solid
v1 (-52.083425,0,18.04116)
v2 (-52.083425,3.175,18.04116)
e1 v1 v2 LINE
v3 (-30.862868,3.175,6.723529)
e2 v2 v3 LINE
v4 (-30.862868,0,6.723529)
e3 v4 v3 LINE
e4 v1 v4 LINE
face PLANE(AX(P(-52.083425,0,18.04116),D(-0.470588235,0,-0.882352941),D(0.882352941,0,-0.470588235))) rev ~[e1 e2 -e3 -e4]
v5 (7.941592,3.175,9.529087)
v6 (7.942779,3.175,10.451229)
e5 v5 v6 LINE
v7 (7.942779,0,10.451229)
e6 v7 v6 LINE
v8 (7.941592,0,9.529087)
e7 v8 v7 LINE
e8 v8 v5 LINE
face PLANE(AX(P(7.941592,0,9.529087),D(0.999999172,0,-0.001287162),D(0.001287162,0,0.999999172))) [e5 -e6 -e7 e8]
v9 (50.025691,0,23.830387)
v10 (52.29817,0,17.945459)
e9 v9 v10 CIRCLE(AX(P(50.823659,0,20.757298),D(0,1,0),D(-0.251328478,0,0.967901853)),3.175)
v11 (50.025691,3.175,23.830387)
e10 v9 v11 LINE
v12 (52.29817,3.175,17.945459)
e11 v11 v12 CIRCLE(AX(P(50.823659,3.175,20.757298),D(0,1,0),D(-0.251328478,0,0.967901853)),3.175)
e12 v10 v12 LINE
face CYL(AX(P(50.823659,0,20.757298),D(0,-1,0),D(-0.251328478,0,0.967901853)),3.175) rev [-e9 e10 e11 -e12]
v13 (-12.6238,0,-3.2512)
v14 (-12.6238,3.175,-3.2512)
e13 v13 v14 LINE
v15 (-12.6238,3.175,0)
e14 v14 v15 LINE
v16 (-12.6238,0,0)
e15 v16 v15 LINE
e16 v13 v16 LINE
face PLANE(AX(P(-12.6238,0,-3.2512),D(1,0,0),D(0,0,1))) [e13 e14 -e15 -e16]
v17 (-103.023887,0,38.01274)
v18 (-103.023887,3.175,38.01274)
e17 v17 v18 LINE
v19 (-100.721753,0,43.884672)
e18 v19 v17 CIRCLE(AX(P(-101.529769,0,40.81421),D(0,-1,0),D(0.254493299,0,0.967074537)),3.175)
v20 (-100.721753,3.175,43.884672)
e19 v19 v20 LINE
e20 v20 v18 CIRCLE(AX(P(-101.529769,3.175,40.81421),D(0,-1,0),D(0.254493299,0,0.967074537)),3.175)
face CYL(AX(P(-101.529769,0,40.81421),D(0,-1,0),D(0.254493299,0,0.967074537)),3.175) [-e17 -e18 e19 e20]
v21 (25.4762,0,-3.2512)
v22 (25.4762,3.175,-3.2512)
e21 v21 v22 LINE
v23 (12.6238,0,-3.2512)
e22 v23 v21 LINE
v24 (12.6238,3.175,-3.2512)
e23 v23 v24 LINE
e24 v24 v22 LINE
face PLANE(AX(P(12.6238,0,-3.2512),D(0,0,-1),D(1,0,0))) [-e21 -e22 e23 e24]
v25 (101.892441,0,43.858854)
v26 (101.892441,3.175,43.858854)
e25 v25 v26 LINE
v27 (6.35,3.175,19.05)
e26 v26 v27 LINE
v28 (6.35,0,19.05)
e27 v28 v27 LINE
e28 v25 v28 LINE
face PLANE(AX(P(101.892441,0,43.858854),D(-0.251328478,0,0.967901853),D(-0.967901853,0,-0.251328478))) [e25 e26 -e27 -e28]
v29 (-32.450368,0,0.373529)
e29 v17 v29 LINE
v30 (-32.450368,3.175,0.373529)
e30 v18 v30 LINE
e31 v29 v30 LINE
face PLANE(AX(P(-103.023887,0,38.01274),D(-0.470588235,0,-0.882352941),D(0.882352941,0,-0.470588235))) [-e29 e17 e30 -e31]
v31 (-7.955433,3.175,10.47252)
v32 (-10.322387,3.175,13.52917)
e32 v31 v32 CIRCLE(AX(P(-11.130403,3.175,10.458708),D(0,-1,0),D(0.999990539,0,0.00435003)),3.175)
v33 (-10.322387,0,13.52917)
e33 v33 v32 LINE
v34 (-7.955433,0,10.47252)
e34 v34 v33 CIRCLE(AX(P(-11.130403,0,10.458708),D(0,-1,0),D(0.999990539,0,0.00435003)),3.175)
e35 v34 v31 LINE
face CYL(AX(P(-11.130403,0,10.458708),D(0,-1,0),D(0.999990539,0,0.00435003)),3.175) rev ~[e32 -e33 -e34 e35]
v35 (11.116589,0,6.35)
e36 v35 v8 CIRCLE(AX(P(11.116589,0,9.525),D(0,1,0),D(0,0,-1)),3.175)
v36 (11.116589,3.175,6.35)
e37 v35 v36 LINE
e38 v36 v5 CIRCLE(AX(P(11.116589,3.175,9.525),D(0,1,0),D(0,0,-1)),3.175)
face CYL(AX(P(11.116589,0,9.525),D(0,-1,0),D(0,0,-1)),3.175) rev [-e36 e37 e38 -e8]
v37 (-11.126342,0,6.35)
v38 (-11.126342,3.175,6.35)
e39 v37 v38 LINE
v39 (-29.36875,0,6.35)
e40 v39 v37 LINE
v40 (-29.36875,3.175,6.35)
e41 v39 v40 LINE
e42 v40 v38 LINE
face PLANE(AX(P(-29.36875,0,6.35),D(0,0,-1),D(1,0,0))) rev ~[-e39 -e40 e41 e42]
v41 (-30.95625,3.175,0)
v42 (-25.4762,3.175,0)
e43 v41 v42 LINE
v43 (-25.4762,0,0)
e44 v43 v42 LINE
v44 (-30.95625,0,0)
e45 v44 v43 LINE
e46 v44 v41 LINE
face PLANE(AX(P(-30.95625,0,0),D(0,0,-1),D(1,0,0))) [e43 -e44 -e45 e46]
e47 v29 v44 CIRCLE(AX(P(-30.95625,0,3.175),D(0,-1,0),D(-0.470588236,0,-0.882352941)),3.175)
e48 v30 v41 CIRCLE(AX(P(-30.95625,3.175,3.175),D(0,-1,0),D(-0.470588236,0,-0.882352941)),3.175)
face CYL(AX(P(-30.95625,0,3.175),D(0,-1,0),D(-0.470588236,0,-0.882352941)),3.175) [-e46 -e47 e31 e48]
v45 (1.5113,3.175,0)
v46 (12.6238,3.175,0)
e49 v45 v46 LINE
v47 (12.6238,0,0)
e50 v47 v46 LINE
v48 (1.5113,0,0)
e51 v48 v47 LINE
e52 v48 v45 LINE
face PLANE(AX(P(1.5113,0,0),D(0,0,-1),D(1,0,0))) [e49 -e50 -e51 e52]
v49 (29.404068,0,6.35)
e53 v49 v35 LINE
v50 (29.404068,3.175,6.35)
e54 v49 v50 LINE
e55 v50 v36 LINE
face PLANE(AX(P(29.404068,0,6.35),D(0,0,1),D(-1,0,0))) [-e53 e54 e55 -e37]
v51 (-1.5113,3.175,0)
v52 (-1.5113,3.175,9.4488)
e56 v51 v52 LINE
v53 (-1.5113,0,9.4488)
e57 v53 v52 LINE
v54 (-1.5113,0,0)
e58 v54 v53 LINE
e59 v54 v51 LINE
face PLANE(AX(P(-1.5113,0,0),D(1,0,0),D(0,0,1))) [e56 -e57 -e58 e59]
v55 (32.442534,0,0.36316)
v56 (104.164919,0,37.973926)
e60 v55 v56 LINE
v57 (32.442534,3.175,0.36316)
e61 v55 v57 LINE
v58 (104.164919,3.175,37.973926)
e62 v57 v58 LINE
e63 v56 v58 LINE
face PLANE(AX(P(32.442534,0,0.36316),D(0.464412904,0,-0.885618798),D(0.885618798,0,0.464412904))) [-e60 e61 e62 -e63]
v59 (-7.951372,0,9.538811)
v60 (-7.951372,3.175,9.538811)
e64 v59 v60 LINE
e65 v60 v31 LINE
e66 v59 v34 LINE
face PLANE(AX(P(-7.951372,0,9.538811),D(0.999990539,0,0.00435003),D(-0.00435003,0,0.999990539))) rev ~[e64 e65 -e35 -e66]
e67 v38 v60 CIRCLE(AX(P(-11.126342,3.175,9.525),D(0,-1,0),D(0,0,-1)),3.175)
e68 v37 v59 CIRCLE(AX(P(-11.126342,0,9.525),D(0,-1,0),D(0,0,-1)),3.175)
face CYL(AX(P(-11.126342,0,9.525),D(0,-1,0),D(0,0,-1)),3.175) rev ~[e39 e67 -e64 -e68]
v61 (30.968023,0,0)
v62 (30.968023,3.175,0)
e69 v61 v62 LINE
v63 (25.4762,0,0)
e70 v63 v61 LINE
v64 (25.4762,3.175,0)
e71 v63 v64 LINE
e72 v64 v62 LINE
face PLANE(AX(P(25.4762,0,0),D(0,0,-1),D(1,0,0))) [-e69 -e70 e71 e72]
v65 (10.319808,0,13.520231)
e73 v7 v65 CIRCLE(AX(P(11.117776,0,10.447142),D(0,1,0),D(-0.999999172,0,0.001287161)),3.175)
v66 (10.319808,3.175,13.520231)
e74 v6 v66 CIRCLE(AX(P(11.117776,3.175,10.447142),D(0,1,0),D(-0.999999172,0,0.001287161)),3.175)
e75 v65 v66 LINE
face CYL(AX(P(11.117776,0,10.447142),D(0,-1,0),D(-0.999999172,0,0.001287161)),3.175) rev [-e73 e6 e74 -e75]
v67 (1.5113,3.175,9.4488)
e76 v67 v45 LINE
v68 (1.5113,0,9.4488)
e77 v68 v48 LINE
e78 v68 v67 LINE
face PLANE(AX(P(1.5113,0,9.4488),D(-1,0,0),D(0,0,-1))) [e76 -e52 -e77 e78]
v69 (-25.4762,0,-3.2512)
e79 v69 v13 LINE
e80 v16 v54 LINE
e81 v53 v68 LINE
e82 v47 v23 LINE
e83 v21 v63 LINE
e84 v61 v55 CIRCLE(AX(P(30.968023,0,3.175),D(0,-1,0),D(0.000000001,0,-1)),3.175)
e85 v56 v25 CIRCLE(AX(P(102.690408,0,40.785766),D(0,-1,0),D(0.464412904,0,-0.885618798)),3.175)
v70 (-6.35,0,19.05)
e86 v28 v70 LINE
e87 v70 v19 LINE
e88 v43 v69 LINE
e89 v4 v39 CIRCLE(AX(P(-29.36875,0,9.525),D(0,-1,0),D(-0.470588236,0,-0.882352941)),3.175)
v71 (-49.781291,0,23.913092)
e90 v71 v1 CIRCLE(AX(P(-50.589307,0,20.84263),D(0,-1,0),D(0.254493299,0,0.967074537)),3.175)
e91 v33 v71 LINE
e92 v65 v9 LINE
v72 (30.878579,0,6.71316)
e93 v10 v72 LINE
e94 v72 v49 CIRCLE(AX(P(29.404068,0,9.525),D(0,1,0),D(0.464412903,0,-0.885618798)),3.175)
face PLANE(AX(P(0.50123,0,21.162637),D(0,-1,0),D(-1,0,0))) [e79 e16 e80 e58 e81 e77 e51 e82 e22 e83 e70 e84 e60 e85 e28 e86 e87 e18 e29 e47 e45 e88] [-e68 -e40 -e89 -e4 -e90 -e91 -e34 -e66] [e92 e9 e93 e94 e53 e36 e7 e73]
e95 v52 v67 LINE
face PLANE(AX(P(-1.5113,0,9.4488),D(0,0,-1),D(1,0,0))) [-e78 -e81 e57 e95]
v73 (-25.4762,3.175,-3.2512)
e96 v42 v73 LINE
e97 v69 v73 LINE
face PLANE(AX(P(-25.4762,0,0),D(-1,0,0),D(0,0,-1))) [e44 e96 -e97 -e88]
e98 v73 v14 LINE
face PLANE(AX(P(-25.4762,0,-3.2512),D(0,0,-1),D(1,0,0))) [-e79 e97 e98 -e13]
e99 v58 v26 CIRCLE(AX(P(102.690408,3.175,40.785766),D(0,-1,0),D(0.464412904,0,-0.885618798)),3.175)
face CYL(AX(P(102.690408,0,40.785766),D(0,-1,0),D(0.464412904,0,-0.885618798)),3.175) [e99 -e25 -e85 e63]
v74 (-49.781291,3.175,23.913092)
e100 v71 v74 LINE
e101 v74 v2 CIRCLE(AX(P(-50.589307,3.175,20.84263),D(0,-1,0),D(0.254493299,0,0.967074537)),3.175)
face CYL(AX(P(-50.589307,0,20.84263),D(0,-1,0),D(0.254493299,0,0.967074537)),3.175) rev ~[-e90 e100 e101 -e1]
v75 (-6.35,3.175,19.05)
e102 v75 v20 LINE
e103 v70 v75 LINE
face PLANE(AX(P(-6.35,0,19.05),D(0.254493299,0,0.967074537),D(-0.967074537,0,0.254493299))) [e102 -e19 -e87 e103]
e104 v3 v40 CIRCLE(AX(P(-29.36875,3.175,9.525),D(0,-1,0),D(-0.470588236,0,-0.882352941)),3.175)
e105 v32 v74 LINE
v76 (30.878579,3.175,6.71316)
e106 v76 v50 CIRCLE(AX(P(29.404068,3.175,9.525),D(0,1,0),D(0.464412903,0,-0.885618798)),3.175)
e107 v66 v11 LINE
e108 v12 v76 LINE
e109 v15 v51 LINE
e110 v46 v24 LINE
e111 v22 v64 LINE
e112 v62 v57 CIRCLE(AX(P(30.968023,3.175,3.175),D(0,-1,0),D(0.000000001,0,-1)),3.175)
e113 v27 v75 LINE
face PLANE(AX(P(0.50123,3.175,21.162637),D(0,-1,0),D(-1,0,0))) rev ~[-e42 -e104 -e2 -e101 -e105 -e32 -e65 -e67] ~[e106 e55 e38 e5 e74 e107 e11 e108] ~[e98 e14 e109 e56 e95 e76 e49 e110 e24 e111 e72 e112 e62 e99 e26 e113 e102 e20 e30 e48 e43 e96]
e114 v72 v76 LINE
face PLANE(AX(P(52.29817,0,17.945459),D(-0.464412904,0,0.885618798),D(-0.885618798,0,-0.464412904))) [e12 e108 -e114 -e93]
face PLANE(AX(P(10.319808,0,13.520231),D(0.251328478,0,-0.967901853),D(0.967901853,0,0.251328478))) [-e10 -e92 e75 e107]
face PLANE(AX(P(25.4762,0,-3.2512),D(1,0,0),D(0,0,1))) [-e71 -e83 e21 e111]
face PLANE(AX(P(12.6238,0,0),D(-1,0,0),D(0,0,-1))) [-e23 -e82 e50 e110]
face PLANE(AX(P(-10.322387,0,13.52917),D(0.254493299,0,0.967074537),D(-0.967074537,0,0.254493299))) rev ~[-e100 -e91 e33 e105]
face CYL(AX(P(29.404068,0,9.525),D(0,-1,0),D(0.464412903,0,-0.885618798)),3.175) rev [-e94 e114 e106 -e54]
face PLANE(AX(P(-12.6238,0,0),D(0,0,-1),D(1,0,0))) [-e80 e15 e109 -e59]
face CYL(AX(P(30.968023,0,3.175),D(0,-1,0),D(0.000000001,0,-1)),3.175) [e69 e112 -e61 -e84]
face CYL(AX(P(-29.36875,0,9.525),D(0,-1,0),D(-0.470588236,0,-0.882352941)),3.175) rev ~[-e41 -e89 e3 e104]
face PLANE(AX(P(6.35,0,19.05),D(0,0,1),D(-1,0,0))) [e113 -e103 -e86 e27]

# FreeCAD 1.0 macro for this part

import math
import FreeCAD as App
import Part
import Sketcher
from FreeCAD import Vector
Q = App.Units.Quantity

doc = App.newDocument("Part")
params = doc.addObject("Spreadsheet::Sheet", "Params")
for row, (alias, value) in enumerate([
    ("sketch1_width", "0.5 in"),
    ("sketch1_radius", "0.125 in"),
    ("sketch1_radius2", "0.125 in"),
    ("sketch1_radius3", "0.125 in"),
    ("sketch1_radius4", "0.125 in"),
    ("pad1_length", "0.125 in"),
], start=1):
    params.set(f"A{row}", alias)
    params.set(f"B{row}", "=" + value)
    params.setAlias(f"B{row}", alias)

body = doc.addObject("PartDesign::Body", "Body")

# Sketch on XZ plane
sketch1 = doc.addObject("Sketcher::SketchObject", "Sketch")
body.addObject(sketch1)
sketch1.AttachmentSupport = (doc.XZ_Plane, [""])
sketch1.MapMode = "FlatFace"
sketch1.addGeometry([
    Part.LineSegment(Vector(12.6238, 0, 0), Vector(1.5113, 0, 0)),  # 0
    Part.LineSegment(Vector(1.5113, 0, 0), Vector(1.5113, 9.4488, 0)),  # 1
    Part.LineSegment(Vector(1.5113, 9.4488, 0), Vector(-1.5113, 9.4488, 0)),  # 2
    Part.LineSegment(Vector(-1.5113, 9.4488, 0), Vector(-1.5113, 0, 0)),  # 3
    Part.LineSegment(Vector(-1.5113, 0, 0), Vector(-12.6238, 0, 0)),  # 4
    Part.LineSegment(Vector(-12.6238, 0, 0), Vector(-12.6238, -3.2512, 0)),  # 5
    Part.LineSegment(Vector(-12.6238, -3.2512, 0), Vector(-25.4762, -3.2512, 0)),  # 6
    Part.LineSegment(Vector(-25.4762, -3.2512, 0), Vector(-25.4762, 0, 0)),  # 7
    Part.LineSegment(Vector(-25.4762, 0, 0), Vector(-30.95625, 0, 0)),  # 8
    Part.ArcOfCircle(Part.Circle(Vector(-30.95625, 3.175, 0), Vector(0, 0, 1), 3.175), math.radians(-118.072487), math.radians(-90)),  # 9
    Part.LineSegment(Vector(-32.450368, 0.373529, 0), Vector(-103.023887, 38.01274, 0)),  # 10
    Part.ArcOfCircle(Part.Circle(Vector(-101.529769, 40.81421, 0), Vector(0, 0, 1), 3.175), math.radians(75.256437), math.radians(241.927513)),  # 11
    Part.LineSegment(Vector(-100.721753, 43.884672, 0), Vector(-6.35, 19.05, 0)),  # 12
    Part.LineSegment(Vector(-6.35, 19.05, 0), Vector(6.35, 19.05, 0)),  # 13
    Part.LineSegment(Vector(6.35, 19.05, 0), Vector(101.892441, 43.858854, 0)),  # 14
    Part.ArcOfCircle(Part.Circle(Vector(102.690408, 40.785766, 0), Vector(0, 0, 1), 3.175), math.radians(-62.327767), math.radians(104.556139)),  # 15
    Part.LineSegment(Vector(104.164919, 37.973926, 0), Vector(32.442534, 0.36316, 0)),  # 16
    Part.ArcOfCircle(Part.Circle(Vector(30.968023, 3.175, 0), Vector(0, 0, 1), 3.175), math.radians(-90), math.radians(-62.327767)),  # 17
    Part.LineSegment(Vector(30.968023, 0, 0), Vector(25.4762, 0, 0)),  # 18
    Part.LineSegment(Vector(25.4762, 0, 0), Vector(25.4762, -3.2512, 0)),  # 19
    Part.LineSegment(Vector(25.4762, -3.2512, 0), Vector(12.6238, -3.2512, 0)),  # 20
    Part.LineSegment(Vector(12.6238, -3.2512, 0), Vector(12.6238, 0, 0)),  # 21
    Part.ArcOfCircle(Part.Circle(Vector(11.116589, 9.525, 0), Vector(0, 0, 1), 3.175), math.radians(179.926251), math.radians(270)),  # 22
    Part.LineSegment(Vector(11.116589, 6.35, 0), Vector(29.404068, 6.35, 0)),  # 23
    Part.ArcOfCircle(Part.Circle(Vector(29.404068, 9.525, 0), Vector(0, 0, 1), 3.175), math.radians(-90), math.radians(-62.327767)),  # 24
    Part.LineSegment(Vector(30.878579, 6.71316, 0), Vector(52.29817, 17.945459, 0)),  # 25
    Part.ArcOfCircle(Part.Circle(Vector(50.823659, 20.757298, 0), Vector(0, 0, 1), 3.175), math.radians(-62.327767), math.radians(104.556139)),  # 26
    Part.LineSegment(Vector(50.025691, 23.830387, 0), Vector(10.319808, 13.520231, 0)),  # 27
    Part.ArcOfCircle(Part.Circle(Vector(11.117776, 10.447142, 0), Vector(0, 0, 1), 3.175), math.radians(104.556139), math.radians(179.926251)),  # 28
    Part.LineSegment(Vector(7.942779, 10.451229, 0), Vector(7.941592, 9.529087, 0)),  # 29
    Part.LineSegment(Vector(-52.083425, 18.04116, 0), Vector(-30.862868, 6.723529, 0)),  # 30
    Part.ArcOfCircle(Part.Circle(Vector(-29.36875, 9.525, 0), Vector(0, 0, 1), 3.175), math.radians(-118.072487), math.radians(-90)),  # 31
    Part.LineSegment(Vector(-29.36875, 6.35, 0), Vector(-11.126342, 6.35, 0)),  # 32
    Part.ArcOfCircle(Part.Circle(Vector(-11.126342, 9.525, 0), Vector(0, 0, 1), 3.175), math.radians(-90), math.radians(0.249239)),  # 33
    Part.LineSegment(Vector(-7.951372, 9.538811, 0), Vector(-7.955433, 10.47252, 0)),  # 34
    Part.ArcOfCircle(Part.Circle(Vector(-11.130403, 10.458708, 0), Vector(0, 0, 1), 3.175), math.radians(0.249239), math.radians(75.256437)),  # 35
    Part.LineSegment(Vector(-10.322387, 13.52917, 0), Vector(-49.781291, 23.913092, 0)),  # 36
    Part.ArcOfCircle(Part.Circle(Vector(-50.589307, 20.84263, 0), Vector(0, 0, 1), 3.175), math.radians(75.256437), math.radians(241.927513)),  # 37
], False)
sketch1.addConstraint([
    Sketcher.Constraint("Coincident", 0, 2, 1, 1),
    Sketcher.Constraint("Coincident", 1, 2, 2, 1),
    Sketcher.Constraint("Coincident", 2, 2, 3, 1),
    Sketcher.Constraint("Coincident", 3, 2, 4, 1),
    Sketcher.Constraint("Coincident", 4, 2, 5, 1),
    Sketcher.Constraint("Coincident", 5, 2, 6, 1),
    Sketcher.Constraint("Coincident", 6, 2, 7, 1),
    Sketcher.Constraint("Coincident", 7, 2, 8, 1),
    Sketcher.Constraint("Coincident", 8, 2, 9, 2),
    Sketcher.Constraint("Coincident", 9, 1, 10, 1),
    Sketcher.Constraint("Coincident", 10, 2, 11, 2),
    Sketcher.Constraint("Coincident", 11, 1, 12, 1),
    Sketcher.Constraint("Coincident", 12, 2, 13, 1),
    Sketcher.Constraint("Coincident", 13, 2, 14, 1),
    Sketcher.Constraint("Coincident", 14, 2, 15, 2),
    Sketcher.Constraint("Coincident", 15, 1, 16, 1),
    Sketcher.Constraint("Coincident", 16, 2, 17, 2),
    Sketcher.Constraint("Coincident", 17, 1, 18, 1),
    Sketcher.Constraint("Coincident", 18, 2, 19, 1),
    Sketcher.Constraint("Coincident", 19, 2, 20, 1),
    Sketcher.Constraint("Coincident", 20, 2, 21, 1),
    Sketcher.Constraint("Coincident", 21, 2, 0, 1),
    Sketcher.Constraint("Coincident", 22, 2, 23, 1),
    Sketcher.Constraint("Coincident", 23, 2, 24, 1),
    Sketcher.Constraint("Coincident", 24, 2, 25, 1),
    Sketcher.Constraint("Coincident", 25, 2, 26, 1),
    Sketcher.Constraint("Coincident", 26, 2, 27, 1),
    Sketcher.Constraint("Coincident", 27, 2, 28, 1),
    Sketcher.Constraint("Coincident", 28, 2, 29, 1),
    Sketcher.Constraint("Coincident", 29, 2, 22, 1),
    Sketcher.Constraint("Coincident", 30, 2, 31, 1),
    Sketcher.Constraint("Coincident", 31, 2, 32, 1),
    Sketcher.Constraint("Coincident", 32, 2, 33, 1),
    Sketcher.Constraint("Coincident", 33, 2, 34, 1),
    Sketcher.Constraint("Coincident", 34, 2, 35, 1),
    Sketcher.Constraint("Coincident", 35, 2, 36, 1),
    Sketcher.Constraint("Coincident", 36, 2, 37, 1),
    Sketcher.Constraint("Coincident", 37, 2, 30, 1),
    Sketcher.Constraint("Horizontal", 0),
    Sketcher.Constraint("Vertical", 1),
    Sketcher.Constraint("Horizontal", 2),
    Sketcher.Constraint("Vertical", 3),
    Sketcher.Constraint("Horizontal", 4),
    Sketcher.Constraint("Vertical", 5),
    Sketcher.Constraint("Horizontal", 6),
    Sketcher.Constraint("Vertical", 7),
    Sketcher.Constraint("Horizontal", 8),
    Sketcher.Constraint("Horizontal", 13),
    Sketcher.Constraint("Horizontal", 18),
    Sketcher.Constraint("Vertical", 19),
    Sketcher.Constraint("Horizontal", 20),
    Sketcher.Constraint("Vertical", 21),
    Sketcher.Constraint("Horizontal", 23),
    Sketcher.Constraint("Horizontal", 32),
    Sketcher.Constraint("PointOnObject", 0, 2, -1),
    Sketcher.Constraint("PointOnObject", 3, 2, -1),
    Sketcher.Constraint("PointOnObject", 7, 2, -1),
    Sketcher.Constraint("PointOnObject", 17, 1, -1),
    Sketcher.Constraint("DistanceX", 13, 1, 13, 2, Q("0.5 in")),
    Sketcher.Constraint("Radius", 9, Q("0.125 in")),
    Sketcher.Constraint("Radius", 11, Q("0.125 in")),
    Sketcher.Constraint("Radius", 15, Q("0.125 in")),
    Sketcher.Constraint("Radius", 17, Q("0.125 in")),
    Sketcher.Constraint("Radius", 22, Q("0.125 in")),
    Sketcher.Constraint("Radius", 24, Q("0.125 in")),
    Sketcher.Constraint("Radius", 26, Q("0.125 in")),
    Sketcher.Constraint("Radius", 28, Q("0.125 in")),
    Sketcher.Constraint("Radius", 31, Q("0.125 in")),
    Sketcher.Constraint("Radius", 33, Q("0.125 in")),
    Sketcher.Constraint("Radius", 35, Q("0.125 in")),
    Sketcher.Constraint("Radius", 37, Q("0.125 in")),
    Sketcher.Constraint("DistanceX", 0, 2, 0, 1, Q("0.4375 in")),
    Sketcher.Constraint("DistanceX", 2, 2, 2, 1, Q("0.119 in")),
    Sketcher.Constraint("DistanceX", 4, 2, 4, 1, Q("0.4375 in")),
    Sketcher.Constraint("DistanceX", 6, 2, 6, 1, Q("0.506 in")),
    Sketcher.Constraint("DistanceX", 20, 2, 20, 1, Q("0.506 in")),
    Sketcher.Constraint("DistanceY", 1, 1, 1, 2, Q("0.372 in")),
    Sketcher.Constraint("DistanceY", 5, 2, 5, 1, Q("0.128 in")),
    Sketcher.Constraint("DistanceY", 19, 2, 19, 1, Q("0.128 in")),
    Sketcher.Constraint("DistanceX", 12, 2, -1, 1, Q("0.25 in")),
    Sketcher.Constraint("DistanceY", -1, 1, 12, 2, Q("0.75 in")),
    Sketcher.Constraint("DistanceY", -1, 1, 22, 2, Q("0.25 in")),
    Sketcher.Constraint("DistanceY", -1, 1, 31, 2, Q("0.25 in")),
    Sketcher.Constraint("DistanceY", 16, 2, 24, 2, Q("0.25 in")),
    Sketcher.Constraint("DistanceY", 9, 1, 30, 2, Q("0.25 in")),
    Sketcher.Constraint("DistanceX", 9, 3, -1, 1, Q("1.21875 in")),
    Sketcher.Constraint("DistanceX", 31, 3, -1, 1, Q("1.15625 in")),
    Sketcher.Constraint("DistanceX", 4, 2, -1, 1, Q("0.497 in")),
    Sketcher.Constraint("DistanceX", 8, 2, -1, 1, Q("1.21875 in")),
    Sketcher.Constraint("DistanceX", 31, 2, -1, 1, Q("1.15625 in")),
    Sketcher.Constraint("DistanceX", 29, 2, 22, 2, Q("0.1249999 in")),
    Sketcher.Constraint("DistanceX", 37, 3, 35, 3, Q("1.5535001 in")),
    Sketcher.Constraint("DistanceX", 17, 3, 14, 2, Q("2.7922999 in")),
    Sketcher.Constraint("DistanceX", 23, 1, 23, 2, Q("18.287479 mm")),
    Sketcher.Constraint("DistanceX", 32, 1, 32, 2, Q("18.242408 mm")),
    Sketcher.Constraint("DistanceY", -1, 1, 26, 3, Q("20.757298 mm")),
    Sketcher.Constraint("DistanceY", 24, 2, 25, 2, Q("11.232298 mm")),
    Sketcher.Constraint("DistanceX", 24, 3, 25, 2, Q("22.894102 mm")),
    Sketcher.Constraint("DistanceX", 23, 2, 25, 2, Q("22.894102 mm")),
    Sketcher.Constraint("DistanceY", 28, 2, 27, 2, Q("3.069002 mm")),
    Sketcher.Constraint("Distance", 10, Q("79.983322 mm")),
    Sketcher.Constraint("Distance", 16, Q("80.985618 mm")),
    Sketcher.Constraint("Distance", 36, Q("40.80234 mm")),
    Sketcher.Constraint("DistanceX", 18, 2, 18, 1, Q("5.491823 mm")),
    Sketcher.Constraint("DistanceX", 11, 3, -1, 1, Q("101.529769 mm")),
    Sketcher.Constraint("DistanceY", -1, 1, 11, 3, Q("40.81421 mm")),
    Sketcher.Constraint("DistanceX", -1, 1, 15, 3, Q("102.690408 mm")),
    Sketcher.Constraint("DistanceX", -1, 1, 22, 3, Q("11.116589 mm")),
    Sketcher.Constraint("DistanceX", -1, 1, 26, 3, Q("50.823659 mm")),
    Sketcher.Constraint("DistanceX", 33, 3, -1, 1, Q("11.126342 mm")),
    Sketcher.Constraint("DistanceY", -1, 1, 35, 3, Q("10.458708 mm")),
    Sketcher.Constraint("DistanceY", -1, 1, 37, 3, Q("20.84263 mm")),
    Sketcher.Constraint("DistanceY", -1, 1, 9, 1, Q("0.373529 mm")),
    Sketcher.Constraint("DistanceY", -1, 1, 11, 1, Q("43.884672 mm")),
    Sketcher.Constraint("DistanceX", -1, 1, 14, 2, Q("101.892441 mm")),
    Sketcher.Constraint("DistanceX", -1, 1, 15, 1, Q("104.164919 mm")),
    Sketcher.Constraint("DistanceX", -1, 1, 26, 2, Q("50.025691 mm")),
    Sketcher.Constraint("DistanceX", -1, 1, 27, 2, Q("10.319808 mm")),
    Sketcher.Constraint("DistanceY", -1, 1, 27, 2, Q("13.520231 mm")),
    Sketcher.Constraint("DistanceX", -1, 1, 28, 2, Q("7.942779 mm")),
    Sketcher.Constraint("DistanceX", 33, 2, -1, 1, Q("7.951372 mm")),
    Sketcher.Constraint("DistanceY", -1, 1, 34, 2, Q("10.47252 mm")),
    Sketcher.Constraint("DistanceY", -1, 1, 35, 2, Q("13.52917 mm")),
    Sketcher.Constraint("DistanceX", 36, 2, -1, 1, Q("49.781291 mm")),
    Sketcher.Constraint("DistanceY", -1, 1, 37, 2, Q("18.04116 mm")),
    Sketcher.Constraint("Distance", 29, Q("0.922143 mm")),
])
sketch1.setExpression("Constraints[58]", "Params.sketch1_width")
sketch1.setExpression("Constraints[59]", "Params.sketch1_radius")
sketch1.setExpression("Constraints[60]", "Params.sketch1_radius2")
sketch1.setExpression("Constraints[61]", "Params.sketch1_radius3")
sketch1.setExpression("Constraints[62]", "Params.sketch1_radius4")
pad1 = doc.addObject("PartDesign::Pad", "Pad")
body.addObject(pad1)
pad1.Profile = sketch1
pad1.setExpression("Length", "Params.pad1_length")
pad1.Reversed = True

doc.recompute()
